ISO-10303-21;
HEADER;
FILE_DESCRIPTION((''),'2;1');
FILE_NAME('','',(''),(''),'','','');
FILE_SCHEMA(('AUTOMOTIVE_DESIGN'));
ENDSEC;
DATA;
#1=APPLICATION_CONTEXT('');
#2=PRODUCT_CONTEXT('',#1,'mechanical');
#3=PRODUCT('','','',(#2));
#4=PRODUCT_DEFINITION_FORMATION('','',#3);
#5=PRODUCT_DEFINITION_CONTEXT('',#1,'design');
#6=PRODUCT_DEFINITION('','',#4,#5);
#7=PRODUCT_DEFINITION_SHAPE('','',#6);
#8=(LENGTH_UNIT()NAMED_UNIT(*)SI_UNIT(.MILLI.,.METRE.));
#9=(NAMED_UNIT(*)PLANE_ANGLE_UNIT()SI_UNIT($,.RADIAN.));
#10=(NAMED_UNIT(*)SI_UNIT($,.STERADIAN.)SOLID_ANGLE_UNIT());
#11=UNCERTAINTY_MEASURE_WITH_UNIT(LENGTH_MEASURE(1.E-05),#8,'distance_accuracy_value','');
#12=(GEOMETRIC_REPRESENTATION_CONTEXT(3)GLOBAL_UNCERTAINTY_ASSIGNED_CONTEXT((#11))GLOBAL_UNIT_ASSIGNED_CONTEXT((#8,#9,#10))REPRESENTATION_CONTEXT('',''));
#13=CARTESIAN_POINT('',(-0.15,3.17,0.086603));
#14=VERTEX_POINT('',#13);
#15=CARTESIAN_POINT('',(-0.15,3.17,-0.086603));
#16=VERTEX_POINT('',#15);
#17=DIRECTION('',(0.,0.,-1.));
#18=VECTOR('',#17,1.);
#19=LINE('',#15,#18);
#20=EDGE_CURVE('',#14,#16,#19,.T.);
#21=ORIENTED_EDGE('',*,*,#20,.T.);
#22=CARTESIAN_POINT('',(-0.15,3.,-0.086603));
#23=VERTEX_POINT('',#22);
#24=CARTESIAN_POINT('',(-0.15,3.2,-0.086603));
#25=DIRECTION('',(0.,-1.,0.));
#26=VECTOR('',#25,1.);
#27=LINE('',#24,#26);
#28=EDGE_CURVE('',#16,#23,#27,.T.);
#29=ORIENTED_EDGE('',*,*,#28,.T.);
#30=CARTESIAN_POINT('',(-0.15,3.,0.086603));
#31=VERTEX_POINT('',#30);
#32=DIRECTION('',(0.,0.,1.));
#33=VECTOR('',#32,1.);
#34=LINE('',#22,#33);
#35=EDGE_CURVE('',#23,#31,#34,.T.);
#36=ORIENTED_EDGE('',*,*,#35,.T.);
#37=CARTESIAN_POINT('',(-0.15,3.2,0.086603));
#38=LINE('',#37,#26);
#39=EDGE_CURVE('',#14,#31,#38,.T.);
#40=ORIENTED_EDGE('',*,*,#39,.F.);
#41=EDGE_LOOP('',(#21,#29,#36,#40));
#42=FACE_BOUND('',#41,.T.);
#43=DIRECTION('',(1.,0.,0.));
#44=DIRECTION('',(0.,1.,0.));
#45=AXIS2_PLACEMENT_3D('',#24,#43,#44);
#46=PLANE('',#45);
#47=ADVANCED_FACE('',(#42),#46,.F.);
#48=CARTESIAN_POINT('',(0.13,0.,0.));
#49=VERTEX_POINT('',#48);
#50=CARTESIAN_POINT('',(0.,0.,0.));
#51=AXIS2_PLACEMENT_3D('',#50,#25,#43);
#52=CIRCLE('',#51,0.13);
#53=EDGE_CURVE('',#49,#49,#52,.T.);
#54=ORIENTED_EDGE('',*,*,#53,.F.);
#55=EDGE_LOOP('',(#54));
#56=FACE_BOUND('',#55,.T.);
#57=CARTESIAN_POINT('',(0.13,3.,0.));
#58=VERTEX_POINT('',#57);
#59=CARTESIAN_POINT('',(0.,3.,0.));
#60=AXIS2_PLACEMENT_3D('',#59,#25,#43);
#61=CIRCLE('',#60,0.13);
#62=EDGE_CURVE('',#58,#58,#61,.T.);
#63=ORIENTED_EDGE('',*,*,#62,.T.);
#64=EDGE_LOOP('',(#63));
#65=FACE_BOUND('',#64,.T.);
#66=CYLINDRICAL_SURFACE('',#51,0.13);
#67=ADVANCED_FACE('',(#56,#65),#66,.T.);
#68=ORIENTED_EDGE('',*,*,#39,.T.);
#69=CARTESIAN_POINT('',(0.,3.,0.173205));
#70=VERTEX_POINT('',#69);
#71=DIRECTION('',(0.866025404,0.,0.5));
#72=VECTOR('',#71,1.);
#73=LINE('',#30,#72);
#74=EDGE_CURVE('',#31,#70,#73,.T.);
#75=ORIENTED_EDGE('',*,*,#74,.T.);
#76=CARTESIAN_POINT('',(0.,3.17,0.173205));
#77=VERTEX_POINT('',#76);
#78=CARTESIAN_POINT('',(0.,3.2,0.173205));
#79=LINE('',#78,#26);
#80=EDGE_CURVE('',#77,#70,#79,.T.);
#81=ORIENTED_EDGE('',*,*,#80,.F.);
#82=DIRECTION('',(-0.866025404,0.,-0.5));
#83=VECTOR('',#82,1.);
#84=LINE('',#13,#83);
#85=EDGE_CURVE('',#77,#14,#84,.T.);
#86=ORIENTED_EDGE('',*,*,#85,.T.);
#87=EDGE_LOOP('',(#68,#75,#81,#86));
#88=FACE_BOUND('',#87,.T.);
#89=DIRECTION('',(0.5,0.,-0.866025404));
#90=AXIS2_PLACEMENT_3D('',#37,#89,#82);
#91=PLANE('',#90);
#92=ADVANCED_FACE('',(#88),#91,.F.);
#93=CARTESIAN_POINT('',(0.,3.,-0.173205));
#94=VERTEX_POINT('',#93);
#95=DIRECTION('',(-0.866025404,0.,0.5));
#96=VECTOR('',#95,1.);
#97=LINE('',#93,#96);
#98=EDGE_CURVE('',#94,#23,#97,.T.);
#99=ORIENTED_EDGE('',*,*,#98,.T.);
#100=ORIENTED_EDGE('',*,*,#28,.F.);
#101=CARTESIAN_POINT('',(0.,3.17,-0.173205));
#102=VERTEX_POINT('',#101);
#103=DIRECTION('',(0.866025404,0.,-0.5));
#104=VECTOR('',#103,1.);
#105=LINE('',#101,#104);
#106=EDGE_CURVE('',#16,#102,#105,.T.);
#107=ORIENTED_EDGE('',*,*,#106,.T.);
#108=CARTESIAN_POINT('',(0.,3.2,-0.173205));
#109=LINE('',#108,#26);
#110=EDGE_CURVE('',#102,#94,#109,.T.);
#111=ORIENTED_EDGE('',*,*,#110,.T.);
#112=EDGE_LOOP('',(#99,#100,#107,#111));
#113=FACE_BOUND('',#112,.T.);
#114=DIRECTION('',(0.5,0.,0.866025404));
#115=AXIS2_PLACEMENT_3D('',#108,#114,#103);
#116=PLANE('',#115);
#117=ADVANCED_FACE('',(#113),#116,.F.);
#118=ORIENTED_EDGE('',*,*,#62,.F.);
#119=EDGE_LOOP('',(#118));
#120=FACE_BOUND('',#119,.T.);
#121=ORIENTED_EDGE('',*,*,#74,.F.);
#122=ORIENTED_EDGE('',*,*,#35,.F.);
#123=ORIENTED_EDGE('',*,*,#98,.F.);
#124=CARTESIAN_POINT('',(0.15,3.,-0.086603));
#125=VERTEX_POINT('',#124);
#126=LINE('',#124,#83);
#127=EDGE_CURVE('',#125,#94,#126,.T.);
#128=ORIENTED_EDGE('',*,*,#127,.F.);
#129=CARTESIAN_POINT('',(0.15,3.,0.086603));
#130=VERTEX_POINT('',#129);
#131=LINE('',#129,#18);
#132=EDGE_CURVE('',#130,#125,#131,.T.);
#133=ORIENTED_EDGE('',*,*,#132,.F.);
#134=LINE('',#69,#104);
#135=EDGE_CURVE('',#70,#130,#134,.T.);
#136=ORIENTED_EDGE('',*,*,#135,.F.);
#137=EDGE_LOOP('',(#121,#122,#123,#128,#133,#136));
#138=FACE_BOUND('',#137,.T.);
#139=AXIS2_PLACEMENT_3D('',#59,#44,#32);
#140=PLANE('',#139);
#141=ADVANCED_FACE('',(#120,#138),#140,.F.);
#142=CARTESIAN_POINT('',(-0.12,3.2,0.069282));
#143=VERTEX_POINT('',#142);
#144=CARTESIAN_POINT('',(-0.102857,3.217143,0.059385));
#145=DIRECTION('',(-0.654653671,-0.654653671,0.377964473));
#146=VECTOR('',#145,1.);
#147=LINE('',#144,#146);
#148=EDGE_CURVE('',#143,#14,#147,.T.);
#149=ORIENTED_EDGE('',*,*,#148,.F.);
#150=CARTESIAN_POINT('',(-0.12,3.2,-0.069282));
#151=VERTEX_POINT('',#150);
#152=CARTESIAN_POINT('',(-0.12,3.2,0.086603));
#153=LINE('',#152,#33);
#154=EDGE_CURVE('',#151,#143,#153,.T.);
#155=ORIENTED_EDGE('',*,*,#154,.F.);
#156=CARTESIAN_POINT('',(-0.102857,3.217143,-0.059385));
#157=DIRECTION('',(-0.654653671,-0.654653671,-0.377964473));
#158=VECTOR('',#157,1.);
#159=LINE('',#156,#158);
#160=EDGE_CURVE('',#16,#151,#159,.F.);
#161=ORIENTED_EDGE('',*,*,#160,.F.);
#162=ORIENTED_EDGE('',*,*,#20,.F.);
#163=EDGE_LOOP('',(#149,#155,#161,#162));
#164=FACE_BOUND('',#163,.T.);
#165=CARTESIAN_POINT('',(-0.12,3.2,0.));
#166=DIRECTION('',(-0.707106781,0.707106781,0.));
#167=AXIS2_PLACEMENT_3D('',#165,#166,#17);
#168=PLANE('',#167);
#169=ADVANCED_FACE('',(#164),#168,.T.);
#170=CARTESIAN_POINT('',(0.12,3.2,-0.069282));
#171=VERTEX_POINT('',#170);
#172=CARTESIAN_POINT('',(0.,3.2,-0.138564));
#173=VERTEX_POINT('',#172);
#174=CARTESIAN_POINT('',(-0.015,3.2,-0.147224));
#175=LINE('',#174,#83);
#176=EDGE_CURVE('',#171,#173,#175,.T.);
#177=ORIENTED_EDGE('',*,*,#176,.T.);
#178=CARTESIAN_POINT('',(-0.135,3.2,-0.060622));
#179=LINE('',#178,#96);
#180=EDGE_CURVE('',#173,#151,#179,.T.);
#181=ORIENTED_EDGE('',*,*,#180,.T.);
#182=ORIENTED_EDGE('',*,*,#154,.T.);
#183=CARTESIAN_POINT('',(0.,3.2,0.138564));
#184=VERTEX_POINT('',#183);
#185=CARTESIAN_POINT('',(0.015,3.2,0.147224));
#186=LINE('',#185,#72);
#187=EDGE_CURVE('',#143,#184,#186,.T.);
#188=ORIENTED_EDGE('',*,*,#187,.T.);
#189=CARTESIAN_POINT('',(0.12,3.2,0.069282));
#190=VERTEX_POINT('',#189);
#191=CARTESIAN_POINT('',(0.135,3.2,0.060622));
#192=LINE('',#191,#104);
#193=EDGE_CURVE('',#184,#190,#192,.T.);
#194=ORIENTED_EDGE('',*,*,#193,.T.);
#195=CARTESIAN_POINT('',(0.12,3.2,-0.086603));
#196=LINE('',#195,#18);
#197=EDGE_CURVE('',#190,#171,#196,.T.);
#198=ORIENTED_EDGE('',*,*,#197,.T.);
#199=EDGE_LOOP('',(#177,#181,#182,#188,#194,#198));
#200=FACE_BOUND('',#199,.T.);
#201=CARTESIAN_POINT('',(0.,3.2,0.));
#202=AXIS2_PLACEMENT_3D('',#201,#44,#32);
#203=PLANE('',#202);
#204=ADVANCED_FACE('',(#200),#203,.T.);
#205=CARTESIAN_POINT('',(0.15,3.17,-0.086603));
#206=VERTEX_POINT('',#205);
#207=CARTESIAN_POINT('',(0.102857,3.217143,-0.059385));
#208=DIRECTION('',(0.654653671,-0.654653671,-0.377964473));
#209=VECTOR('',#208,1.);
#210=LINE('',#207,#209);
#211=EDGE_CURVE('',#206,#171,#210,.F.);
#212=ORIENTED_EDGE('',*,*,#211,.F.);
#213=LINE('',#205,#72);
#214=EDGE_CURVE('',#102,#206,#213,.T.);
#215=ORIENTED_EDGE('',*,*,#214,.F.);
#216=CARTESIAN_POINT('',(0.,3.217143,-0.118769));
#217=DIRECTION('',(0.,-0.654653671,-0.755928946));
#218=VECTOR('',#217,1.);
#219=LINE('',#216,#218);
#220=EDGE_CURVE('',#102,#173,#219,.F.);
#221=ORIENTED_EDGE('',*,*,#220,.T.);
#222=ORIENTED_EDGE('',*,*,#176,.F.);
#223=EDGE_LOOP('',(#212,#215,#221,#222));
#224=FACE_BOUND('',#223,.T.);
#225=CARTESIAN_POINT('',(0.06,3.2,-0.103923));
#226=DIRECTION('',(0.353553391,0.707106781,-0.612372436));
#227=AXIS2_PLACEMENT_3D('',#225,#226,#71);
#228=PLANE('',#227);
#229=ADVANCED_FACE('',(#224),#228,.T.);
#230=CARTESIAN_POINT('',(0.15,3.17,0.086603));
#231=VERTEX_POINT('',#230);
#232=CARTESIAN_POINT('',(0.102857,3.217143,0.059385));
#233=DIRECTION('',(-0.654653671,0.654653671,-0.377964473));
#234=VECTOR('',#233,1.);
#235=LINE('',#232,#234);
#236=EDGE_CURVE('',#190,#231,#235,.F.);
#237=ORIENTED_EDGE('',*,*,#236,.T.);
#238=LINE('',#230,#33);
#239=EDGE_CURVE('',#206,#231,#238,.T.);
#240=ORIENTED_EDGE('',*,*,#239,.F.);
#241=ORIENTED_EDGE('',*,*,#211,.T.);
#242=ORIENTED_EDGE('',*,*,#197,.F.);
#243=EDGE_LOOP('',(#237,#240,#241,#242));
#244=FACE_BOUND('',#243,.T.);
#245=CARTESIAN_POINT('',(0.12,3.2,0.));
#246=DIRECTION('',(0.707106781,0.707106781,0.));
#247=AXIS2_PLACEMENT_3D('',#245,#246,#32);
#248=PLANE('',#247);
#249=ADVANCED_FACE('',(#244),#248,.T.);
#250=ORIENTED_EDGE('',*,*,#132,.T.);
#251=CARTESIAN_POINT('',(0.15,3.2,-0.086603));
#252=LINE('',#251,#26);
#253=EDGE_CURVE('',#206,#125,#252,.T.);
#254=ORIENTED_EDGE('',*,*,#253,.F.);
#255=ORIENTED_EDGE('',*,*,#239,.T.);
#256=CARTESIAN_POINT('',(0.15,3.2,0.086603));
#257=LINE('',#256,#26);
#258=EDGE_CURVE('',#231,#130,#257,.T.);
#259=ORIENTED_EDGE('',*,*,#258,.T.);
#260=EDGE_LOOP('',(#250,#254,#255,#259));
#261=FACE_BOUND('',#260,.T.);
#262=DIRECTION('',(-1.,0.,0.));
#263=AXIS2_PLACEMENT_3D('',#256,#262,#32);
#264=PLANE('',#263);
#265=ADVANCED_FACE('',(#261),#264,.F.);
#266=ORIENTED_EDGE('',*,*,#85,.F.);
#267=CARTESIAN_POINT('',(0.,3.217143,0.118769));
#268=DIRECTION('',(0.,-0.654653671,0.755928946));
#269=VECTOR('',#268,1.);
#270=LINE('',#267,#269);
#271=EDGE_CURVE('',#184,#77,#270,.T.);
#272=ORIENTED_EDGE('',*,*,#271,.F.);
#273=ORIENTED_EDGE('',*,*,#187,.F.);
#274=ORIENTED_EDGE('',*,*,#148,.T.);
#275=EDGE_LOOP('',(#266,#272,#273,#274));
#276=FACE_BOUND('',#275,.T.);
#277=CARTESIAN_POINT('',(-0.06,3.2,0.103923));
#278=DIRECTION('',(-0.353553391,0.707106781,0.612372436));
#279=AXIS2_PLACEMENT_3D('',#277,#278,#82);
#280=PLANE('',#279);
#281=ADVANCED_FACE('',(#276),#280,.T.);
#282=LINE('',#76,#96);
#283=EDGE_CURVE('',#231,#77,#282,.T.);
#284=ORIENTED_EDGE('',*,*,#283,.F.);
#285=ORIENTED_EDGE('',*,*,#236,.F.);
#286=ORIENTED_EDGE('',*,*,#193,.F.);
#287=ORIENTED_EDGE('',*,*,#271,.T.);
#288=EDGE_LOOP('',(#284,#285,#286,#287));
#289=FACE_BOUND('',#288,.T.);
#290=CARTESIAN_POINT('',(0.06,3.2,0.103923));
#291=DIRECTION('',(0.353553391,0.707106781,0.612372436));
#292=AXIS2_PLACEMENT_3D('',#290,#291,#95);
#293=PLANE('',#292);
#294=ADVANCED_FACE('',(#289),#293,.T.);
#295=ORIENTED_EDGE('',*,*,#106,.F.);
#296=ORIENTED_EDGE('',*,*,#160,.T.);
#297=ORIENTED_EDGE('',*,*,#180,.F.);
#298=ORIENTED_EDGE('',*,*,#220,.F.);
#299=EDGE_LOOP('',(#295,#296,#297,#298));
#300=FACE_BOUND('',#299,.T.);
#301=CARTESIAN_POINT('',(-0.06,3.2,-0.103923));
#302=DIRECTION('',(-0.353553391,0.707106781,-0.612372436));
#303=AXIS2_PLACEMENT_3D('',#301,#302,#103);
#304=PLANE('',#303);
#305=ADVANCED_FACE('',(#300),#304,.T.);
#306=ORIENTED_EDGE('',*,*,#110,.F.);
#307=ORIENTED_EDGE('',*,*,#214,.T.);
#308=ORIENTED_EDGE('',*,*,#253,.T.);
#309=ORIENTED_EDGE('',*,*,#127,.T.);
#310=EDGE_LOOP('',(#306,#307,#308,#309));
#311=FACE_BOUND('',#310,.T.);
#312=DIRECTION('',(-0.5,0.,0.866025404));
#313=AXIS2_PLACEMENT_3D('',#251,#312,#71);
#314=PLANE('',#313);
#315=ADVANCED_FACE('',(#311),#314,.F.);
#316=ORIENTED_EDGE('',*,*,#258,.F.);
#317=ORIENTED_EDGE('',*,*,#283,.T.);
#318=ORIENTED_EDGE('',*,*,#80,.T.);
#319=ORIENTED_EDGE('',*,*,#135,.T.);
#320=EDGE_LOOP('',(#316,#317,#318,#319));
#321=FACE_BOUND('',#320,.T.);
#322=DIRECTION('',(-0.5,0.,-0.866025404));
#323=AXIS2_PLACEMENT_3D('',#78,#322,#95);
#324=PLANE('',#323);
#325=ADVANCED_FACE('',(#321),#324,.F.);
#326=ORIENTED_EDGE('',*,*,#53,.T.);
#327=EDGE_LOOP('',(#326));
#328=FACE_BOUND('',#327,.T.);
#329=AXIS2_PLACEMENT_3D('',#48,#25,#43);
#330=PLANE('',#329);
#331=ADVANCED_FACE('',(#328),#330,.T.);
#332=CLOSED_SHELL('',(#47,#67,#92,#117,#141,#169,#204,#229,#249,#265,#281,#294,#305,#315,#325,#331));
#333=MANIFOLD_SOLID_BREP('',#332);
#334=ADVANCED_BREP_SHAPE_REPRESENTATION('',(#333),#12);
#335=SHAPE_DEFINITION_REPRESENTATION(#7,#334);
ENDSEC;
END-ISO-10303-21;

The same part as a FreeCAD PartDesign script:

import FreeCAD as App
import Part
import Sketcher

V = App.Vector
Q = App.Units.Quantity


def edges_at(feature, points):
    """Names of the edges that pass closest to the given points."""
    edges = feature.Shape.Edges
    near = lambda p: min(range(len(edges)), key=lambda i: edges[i].distToShape(Part.Vertex(*p))[0])
    return sorted({f"Edge{near(p) + 1}" for p in points})


def add_polygon(sketch, points):
    """Adds a closed chain of lines whose ends are joined by coincident constraints."""
    first, n = sketch.GeometryCount, len(points)
    for a, b in zip(points, points[1:] + points[:1]):
        sketch.addGeometry(Part.LineSegment(App.Vector(*a, 0), App.Vector(*b, 0)), False)
    for i in range(n):
        sketch.addConstraint(Sketcher.Constraint("Coincident", first + i, 2, first + (i + 1) % n, 1))

doc = App.newDocument("Part")
body = doc.addObject("PartDesign::Body", "Body")

# Sketch on XY plane
sketch1 = body.newObject("Sketcher::SketchObject", "Sketch")
sketch1.AttachmentSupport = (doc.getObject("XY_Plane"), [""])
sketch1.MapMode = "FlatFace"
add_polygon(sketch1, [(0, 3), (0, 0), (0.13, 0), (0.13, 3)])  # lines 0-3
sketch1.addConstraint(Sketcher.Constraint("Vertical", 0))
sketch1.addConstraint(Sketcher.Constraint("Horizontal", 1))
sketch1.addConstraint(Sketcher.Constraint("Vertical", 2))
sketch1.addConstraint(Sketcher.Constraint("Horizontal", 3))
sketch1.addConstraint(Sketcher.Constraint("Coincident", 0, 2, -1, 1))
sketch1.addConstraint(Sketcher.Constraint("DistanceY", 0, 2, 0, 1, 3.0))
sketch1.addConstraint(Sketcher.Constraint("DistanceX", 1, 1, 1, 2, 0.13))
revolution = body.newObject("PartDesign::Revolution", "Revolution")
revolution.Profile = sketch1
revolution.ReferenceAxis = (sketch1, ["V_Axis"])
revolution.Angle = 360

# Sketch on XZ plane
sketch2 = body.newObject("Sketcher::SketchObject", "Sketch001")
sketch2.AttachmentSupport = (doc.getObject("XZ_Plane"), [""])
sketch2.MapMode = "FlatFace"
sketch2.AttachmentOffset = App.Placement(V(0, 0, -3), App.Rotation())
add_polygon(sketch2, [(0, -0.17), (-0.15, -0.09), (-0.15, 0.09), (0, 0.17), (0.15, 0.09), (0.15, -0.09)])  # lines 0-5
sketch2.addConstraint(Sketcher.Constraint("Vertical", 1))
sketch2.addConstraint(Sketcher.Constraint("Vertical", 4))
sketch2.addConstraint(Sketcher.Constraint("Symmetric", 0, 2, 3, 2, -1, 1))
sketch2.addConstraint(Sketcher.Constraint("Symmetric", 2, 2, 5, 2, -1, 1))
sketch2.addConstraint(Sketcher.Constraint("PointOnObject", 2, 2, -2))
sketch2.addConstraint(Sketcher.Constraint("Parallel", 2, 5))
sketch2.addConstraint(Sketcher.Constraint("Horizontal", 1, 2, 3, 2))
sketch2.addConstraint(Sketcher.Constraint("Angle", 0, Q("150 deg")))
sketch2.addConstraint(Sketcher.Constraint("DistanceX", 1, 2, 3, 2, 0.3))
sketch2.addConstraint(Sketcher.Constraint("DistanceY", 1, 1, 1, 2, 0.173205))
pad1 = body.newObject("PartDesign::Pad", "Pad")
pad1.Profile = sketch2
pad1.Length = 0.2
pad1.Reversed = True
doc.recompute()

chamfer = body.newObject("PartDesign::Chamfer", "Chamfer")
chamfer.Base = (pad1, edges_at(pad1, [
    (0.075, 3.2, -0.13),
    (-0.075, 3.2, -0.13),
    (-0.15, 3.2, 0),
    (-0.075, 3.2, 0.13),
    (0.075, 3.2, 0.13),
    (0.15, 3.2, 0),
]))
chamfer.Size = 0.03

doc.recompute()
